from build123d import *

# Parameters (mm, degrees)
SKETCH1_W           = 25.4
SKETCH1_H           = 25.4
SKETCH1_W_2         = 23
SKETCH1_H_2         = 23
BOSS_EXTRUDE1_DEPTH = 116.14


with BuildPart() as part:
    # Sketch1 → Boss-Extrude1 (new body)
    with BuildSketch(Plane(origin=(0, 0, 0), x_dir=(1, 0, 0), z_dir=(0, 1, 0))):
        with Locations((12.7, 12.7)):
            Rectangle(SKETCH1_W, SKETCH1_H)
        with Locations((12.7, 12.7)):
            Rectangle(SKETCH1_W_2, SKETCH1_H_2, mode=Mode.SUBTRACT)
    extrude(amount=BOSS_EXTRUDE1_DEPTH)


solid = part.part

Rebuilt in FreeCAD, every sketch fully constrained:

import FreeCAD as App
import Part
import Sketcher

doc = App.newDocument("Part")
params = doc.addObject("Spreadsheet::Sheet", "Params")
for row, (alias, value) in enumerate([
    ("sketch1_width", "23 mm"),
    ("sketch1_width2", "25.4 mm"),
    ("pad1_length", "116.14 mm"),
], start=1):
    params.set(f"A{row}", alias)
    params.set(f"B{row}", "=" + value)
    params.setAlias(f"B{row}", alias)

body = doc.addObject("PartDesign::Body", "Body")

# Sketch on XZ plane
sketch1 = doc.addObject("Sketcher::SketchObject", "Sketch")
body.addObject(sketch1)
sketch1.AttachmentSupport = (doc.XZ_Plane, [""])
sketch1.MapMode = "FlatFace"
sketch1.addGeometry([
    Part.LineSegment(App.Vector(0, -25, 0), App.Vector(0, 0, 0)),  # 0
    Part.LineSegment(App.Vector(0, 0, 0), App.Vector(25, 0, 0)),  # 1
    Part.LineSegment(App.Vector(25, 0, 0), App.Vector(25, -25, 0)),  # 2
    Part.LineSegment(App.Vector(25, -25, 0), App.Vector(0, -25, 0)),  # 3
    Part.LineSegment(App.Vector(24, -1, 0), App.Vector(1, -1, 0)),  # 4
    Part.LineSegment(App.Vector(1, -1, 0), App.Vector(1, -24, 0)),  # 5
    Part.LineSegment(App.Vector(1, -24, 0), App.Vector(24, -24, 0)),  # 6
    Part.LineSegment(App.Vector(24, -24, 0), App.Vector(24, -1, 0)),  # 7
], False)
sketch1.addConstraint([
    Sketcher.Constraint("Coincident", 0, 2, 1, 1),
    Sketcher.Constraint("Coincident", 1, 2, 2, 1),
    Sketcher.Constraint("Coincident", 2, 2, 3, 1),
    Sketcher.Constraint("Coincident", 3, 2, 0, 1),
    Sketcher.Constraint("Coincident", 4, 2, 5, 1),
    Sketcher.Constraint("Coincident", 5, 2, 6, 1),
    Sketcher.Constraint("Coincident", 6, 2, 7, 1),
    Sketcher.Constraint("Coincident", 7, 2, 4, 1),
    Sketcher.Constraint("Vertical", 0),
    Sketcher.Constraint("Horizontal", 1),
    Sketcher.Constraint("Vertical", 2),
    Sketcher.Constraint("Horizontal", 3),
    Sketcher.Constraint("Horizontal", 4),
    Sketcher.Constraint("Vertical", 5),
    Sketcher.Constraint("Horizontal", 6),
    Sketcher.Constraint("Vertical", 7),
    Sketcher.Constraint("Coincident", 0, 2, -1, 1),
    Sketcher.Constraint("Equal", 3, 0),
    Sketcher.Constraint("Equal", 6, 5),
    Sketcher.Constraint("DistanceX", 4, 2, 4, 1, 23.0),
    Sketcher.Constraint("DistanceX", 1, 1, 1, 2, 25.4),
    Sketcher.Constraint("DistanceX", -1, 1, 4, 2, 1.2),
    Sketcher.Constraint("DistanceY", 4, 2, -1, 1, 1.2),
])
sketch1.setExpression("Constraints[19]", "Params.sketch1_width")
sketch1.setExpression("Constraints[20]", "Params.sketch1_width2")
pad1 = doc.addObject("PartDesign::Pad", "Pad")
body.addObject(pad1)
pad1.Profile = sketch1
pad1.setExpression("Length", "Params.pad1_length")
pad1.Reversed = True

doc.recompute()
